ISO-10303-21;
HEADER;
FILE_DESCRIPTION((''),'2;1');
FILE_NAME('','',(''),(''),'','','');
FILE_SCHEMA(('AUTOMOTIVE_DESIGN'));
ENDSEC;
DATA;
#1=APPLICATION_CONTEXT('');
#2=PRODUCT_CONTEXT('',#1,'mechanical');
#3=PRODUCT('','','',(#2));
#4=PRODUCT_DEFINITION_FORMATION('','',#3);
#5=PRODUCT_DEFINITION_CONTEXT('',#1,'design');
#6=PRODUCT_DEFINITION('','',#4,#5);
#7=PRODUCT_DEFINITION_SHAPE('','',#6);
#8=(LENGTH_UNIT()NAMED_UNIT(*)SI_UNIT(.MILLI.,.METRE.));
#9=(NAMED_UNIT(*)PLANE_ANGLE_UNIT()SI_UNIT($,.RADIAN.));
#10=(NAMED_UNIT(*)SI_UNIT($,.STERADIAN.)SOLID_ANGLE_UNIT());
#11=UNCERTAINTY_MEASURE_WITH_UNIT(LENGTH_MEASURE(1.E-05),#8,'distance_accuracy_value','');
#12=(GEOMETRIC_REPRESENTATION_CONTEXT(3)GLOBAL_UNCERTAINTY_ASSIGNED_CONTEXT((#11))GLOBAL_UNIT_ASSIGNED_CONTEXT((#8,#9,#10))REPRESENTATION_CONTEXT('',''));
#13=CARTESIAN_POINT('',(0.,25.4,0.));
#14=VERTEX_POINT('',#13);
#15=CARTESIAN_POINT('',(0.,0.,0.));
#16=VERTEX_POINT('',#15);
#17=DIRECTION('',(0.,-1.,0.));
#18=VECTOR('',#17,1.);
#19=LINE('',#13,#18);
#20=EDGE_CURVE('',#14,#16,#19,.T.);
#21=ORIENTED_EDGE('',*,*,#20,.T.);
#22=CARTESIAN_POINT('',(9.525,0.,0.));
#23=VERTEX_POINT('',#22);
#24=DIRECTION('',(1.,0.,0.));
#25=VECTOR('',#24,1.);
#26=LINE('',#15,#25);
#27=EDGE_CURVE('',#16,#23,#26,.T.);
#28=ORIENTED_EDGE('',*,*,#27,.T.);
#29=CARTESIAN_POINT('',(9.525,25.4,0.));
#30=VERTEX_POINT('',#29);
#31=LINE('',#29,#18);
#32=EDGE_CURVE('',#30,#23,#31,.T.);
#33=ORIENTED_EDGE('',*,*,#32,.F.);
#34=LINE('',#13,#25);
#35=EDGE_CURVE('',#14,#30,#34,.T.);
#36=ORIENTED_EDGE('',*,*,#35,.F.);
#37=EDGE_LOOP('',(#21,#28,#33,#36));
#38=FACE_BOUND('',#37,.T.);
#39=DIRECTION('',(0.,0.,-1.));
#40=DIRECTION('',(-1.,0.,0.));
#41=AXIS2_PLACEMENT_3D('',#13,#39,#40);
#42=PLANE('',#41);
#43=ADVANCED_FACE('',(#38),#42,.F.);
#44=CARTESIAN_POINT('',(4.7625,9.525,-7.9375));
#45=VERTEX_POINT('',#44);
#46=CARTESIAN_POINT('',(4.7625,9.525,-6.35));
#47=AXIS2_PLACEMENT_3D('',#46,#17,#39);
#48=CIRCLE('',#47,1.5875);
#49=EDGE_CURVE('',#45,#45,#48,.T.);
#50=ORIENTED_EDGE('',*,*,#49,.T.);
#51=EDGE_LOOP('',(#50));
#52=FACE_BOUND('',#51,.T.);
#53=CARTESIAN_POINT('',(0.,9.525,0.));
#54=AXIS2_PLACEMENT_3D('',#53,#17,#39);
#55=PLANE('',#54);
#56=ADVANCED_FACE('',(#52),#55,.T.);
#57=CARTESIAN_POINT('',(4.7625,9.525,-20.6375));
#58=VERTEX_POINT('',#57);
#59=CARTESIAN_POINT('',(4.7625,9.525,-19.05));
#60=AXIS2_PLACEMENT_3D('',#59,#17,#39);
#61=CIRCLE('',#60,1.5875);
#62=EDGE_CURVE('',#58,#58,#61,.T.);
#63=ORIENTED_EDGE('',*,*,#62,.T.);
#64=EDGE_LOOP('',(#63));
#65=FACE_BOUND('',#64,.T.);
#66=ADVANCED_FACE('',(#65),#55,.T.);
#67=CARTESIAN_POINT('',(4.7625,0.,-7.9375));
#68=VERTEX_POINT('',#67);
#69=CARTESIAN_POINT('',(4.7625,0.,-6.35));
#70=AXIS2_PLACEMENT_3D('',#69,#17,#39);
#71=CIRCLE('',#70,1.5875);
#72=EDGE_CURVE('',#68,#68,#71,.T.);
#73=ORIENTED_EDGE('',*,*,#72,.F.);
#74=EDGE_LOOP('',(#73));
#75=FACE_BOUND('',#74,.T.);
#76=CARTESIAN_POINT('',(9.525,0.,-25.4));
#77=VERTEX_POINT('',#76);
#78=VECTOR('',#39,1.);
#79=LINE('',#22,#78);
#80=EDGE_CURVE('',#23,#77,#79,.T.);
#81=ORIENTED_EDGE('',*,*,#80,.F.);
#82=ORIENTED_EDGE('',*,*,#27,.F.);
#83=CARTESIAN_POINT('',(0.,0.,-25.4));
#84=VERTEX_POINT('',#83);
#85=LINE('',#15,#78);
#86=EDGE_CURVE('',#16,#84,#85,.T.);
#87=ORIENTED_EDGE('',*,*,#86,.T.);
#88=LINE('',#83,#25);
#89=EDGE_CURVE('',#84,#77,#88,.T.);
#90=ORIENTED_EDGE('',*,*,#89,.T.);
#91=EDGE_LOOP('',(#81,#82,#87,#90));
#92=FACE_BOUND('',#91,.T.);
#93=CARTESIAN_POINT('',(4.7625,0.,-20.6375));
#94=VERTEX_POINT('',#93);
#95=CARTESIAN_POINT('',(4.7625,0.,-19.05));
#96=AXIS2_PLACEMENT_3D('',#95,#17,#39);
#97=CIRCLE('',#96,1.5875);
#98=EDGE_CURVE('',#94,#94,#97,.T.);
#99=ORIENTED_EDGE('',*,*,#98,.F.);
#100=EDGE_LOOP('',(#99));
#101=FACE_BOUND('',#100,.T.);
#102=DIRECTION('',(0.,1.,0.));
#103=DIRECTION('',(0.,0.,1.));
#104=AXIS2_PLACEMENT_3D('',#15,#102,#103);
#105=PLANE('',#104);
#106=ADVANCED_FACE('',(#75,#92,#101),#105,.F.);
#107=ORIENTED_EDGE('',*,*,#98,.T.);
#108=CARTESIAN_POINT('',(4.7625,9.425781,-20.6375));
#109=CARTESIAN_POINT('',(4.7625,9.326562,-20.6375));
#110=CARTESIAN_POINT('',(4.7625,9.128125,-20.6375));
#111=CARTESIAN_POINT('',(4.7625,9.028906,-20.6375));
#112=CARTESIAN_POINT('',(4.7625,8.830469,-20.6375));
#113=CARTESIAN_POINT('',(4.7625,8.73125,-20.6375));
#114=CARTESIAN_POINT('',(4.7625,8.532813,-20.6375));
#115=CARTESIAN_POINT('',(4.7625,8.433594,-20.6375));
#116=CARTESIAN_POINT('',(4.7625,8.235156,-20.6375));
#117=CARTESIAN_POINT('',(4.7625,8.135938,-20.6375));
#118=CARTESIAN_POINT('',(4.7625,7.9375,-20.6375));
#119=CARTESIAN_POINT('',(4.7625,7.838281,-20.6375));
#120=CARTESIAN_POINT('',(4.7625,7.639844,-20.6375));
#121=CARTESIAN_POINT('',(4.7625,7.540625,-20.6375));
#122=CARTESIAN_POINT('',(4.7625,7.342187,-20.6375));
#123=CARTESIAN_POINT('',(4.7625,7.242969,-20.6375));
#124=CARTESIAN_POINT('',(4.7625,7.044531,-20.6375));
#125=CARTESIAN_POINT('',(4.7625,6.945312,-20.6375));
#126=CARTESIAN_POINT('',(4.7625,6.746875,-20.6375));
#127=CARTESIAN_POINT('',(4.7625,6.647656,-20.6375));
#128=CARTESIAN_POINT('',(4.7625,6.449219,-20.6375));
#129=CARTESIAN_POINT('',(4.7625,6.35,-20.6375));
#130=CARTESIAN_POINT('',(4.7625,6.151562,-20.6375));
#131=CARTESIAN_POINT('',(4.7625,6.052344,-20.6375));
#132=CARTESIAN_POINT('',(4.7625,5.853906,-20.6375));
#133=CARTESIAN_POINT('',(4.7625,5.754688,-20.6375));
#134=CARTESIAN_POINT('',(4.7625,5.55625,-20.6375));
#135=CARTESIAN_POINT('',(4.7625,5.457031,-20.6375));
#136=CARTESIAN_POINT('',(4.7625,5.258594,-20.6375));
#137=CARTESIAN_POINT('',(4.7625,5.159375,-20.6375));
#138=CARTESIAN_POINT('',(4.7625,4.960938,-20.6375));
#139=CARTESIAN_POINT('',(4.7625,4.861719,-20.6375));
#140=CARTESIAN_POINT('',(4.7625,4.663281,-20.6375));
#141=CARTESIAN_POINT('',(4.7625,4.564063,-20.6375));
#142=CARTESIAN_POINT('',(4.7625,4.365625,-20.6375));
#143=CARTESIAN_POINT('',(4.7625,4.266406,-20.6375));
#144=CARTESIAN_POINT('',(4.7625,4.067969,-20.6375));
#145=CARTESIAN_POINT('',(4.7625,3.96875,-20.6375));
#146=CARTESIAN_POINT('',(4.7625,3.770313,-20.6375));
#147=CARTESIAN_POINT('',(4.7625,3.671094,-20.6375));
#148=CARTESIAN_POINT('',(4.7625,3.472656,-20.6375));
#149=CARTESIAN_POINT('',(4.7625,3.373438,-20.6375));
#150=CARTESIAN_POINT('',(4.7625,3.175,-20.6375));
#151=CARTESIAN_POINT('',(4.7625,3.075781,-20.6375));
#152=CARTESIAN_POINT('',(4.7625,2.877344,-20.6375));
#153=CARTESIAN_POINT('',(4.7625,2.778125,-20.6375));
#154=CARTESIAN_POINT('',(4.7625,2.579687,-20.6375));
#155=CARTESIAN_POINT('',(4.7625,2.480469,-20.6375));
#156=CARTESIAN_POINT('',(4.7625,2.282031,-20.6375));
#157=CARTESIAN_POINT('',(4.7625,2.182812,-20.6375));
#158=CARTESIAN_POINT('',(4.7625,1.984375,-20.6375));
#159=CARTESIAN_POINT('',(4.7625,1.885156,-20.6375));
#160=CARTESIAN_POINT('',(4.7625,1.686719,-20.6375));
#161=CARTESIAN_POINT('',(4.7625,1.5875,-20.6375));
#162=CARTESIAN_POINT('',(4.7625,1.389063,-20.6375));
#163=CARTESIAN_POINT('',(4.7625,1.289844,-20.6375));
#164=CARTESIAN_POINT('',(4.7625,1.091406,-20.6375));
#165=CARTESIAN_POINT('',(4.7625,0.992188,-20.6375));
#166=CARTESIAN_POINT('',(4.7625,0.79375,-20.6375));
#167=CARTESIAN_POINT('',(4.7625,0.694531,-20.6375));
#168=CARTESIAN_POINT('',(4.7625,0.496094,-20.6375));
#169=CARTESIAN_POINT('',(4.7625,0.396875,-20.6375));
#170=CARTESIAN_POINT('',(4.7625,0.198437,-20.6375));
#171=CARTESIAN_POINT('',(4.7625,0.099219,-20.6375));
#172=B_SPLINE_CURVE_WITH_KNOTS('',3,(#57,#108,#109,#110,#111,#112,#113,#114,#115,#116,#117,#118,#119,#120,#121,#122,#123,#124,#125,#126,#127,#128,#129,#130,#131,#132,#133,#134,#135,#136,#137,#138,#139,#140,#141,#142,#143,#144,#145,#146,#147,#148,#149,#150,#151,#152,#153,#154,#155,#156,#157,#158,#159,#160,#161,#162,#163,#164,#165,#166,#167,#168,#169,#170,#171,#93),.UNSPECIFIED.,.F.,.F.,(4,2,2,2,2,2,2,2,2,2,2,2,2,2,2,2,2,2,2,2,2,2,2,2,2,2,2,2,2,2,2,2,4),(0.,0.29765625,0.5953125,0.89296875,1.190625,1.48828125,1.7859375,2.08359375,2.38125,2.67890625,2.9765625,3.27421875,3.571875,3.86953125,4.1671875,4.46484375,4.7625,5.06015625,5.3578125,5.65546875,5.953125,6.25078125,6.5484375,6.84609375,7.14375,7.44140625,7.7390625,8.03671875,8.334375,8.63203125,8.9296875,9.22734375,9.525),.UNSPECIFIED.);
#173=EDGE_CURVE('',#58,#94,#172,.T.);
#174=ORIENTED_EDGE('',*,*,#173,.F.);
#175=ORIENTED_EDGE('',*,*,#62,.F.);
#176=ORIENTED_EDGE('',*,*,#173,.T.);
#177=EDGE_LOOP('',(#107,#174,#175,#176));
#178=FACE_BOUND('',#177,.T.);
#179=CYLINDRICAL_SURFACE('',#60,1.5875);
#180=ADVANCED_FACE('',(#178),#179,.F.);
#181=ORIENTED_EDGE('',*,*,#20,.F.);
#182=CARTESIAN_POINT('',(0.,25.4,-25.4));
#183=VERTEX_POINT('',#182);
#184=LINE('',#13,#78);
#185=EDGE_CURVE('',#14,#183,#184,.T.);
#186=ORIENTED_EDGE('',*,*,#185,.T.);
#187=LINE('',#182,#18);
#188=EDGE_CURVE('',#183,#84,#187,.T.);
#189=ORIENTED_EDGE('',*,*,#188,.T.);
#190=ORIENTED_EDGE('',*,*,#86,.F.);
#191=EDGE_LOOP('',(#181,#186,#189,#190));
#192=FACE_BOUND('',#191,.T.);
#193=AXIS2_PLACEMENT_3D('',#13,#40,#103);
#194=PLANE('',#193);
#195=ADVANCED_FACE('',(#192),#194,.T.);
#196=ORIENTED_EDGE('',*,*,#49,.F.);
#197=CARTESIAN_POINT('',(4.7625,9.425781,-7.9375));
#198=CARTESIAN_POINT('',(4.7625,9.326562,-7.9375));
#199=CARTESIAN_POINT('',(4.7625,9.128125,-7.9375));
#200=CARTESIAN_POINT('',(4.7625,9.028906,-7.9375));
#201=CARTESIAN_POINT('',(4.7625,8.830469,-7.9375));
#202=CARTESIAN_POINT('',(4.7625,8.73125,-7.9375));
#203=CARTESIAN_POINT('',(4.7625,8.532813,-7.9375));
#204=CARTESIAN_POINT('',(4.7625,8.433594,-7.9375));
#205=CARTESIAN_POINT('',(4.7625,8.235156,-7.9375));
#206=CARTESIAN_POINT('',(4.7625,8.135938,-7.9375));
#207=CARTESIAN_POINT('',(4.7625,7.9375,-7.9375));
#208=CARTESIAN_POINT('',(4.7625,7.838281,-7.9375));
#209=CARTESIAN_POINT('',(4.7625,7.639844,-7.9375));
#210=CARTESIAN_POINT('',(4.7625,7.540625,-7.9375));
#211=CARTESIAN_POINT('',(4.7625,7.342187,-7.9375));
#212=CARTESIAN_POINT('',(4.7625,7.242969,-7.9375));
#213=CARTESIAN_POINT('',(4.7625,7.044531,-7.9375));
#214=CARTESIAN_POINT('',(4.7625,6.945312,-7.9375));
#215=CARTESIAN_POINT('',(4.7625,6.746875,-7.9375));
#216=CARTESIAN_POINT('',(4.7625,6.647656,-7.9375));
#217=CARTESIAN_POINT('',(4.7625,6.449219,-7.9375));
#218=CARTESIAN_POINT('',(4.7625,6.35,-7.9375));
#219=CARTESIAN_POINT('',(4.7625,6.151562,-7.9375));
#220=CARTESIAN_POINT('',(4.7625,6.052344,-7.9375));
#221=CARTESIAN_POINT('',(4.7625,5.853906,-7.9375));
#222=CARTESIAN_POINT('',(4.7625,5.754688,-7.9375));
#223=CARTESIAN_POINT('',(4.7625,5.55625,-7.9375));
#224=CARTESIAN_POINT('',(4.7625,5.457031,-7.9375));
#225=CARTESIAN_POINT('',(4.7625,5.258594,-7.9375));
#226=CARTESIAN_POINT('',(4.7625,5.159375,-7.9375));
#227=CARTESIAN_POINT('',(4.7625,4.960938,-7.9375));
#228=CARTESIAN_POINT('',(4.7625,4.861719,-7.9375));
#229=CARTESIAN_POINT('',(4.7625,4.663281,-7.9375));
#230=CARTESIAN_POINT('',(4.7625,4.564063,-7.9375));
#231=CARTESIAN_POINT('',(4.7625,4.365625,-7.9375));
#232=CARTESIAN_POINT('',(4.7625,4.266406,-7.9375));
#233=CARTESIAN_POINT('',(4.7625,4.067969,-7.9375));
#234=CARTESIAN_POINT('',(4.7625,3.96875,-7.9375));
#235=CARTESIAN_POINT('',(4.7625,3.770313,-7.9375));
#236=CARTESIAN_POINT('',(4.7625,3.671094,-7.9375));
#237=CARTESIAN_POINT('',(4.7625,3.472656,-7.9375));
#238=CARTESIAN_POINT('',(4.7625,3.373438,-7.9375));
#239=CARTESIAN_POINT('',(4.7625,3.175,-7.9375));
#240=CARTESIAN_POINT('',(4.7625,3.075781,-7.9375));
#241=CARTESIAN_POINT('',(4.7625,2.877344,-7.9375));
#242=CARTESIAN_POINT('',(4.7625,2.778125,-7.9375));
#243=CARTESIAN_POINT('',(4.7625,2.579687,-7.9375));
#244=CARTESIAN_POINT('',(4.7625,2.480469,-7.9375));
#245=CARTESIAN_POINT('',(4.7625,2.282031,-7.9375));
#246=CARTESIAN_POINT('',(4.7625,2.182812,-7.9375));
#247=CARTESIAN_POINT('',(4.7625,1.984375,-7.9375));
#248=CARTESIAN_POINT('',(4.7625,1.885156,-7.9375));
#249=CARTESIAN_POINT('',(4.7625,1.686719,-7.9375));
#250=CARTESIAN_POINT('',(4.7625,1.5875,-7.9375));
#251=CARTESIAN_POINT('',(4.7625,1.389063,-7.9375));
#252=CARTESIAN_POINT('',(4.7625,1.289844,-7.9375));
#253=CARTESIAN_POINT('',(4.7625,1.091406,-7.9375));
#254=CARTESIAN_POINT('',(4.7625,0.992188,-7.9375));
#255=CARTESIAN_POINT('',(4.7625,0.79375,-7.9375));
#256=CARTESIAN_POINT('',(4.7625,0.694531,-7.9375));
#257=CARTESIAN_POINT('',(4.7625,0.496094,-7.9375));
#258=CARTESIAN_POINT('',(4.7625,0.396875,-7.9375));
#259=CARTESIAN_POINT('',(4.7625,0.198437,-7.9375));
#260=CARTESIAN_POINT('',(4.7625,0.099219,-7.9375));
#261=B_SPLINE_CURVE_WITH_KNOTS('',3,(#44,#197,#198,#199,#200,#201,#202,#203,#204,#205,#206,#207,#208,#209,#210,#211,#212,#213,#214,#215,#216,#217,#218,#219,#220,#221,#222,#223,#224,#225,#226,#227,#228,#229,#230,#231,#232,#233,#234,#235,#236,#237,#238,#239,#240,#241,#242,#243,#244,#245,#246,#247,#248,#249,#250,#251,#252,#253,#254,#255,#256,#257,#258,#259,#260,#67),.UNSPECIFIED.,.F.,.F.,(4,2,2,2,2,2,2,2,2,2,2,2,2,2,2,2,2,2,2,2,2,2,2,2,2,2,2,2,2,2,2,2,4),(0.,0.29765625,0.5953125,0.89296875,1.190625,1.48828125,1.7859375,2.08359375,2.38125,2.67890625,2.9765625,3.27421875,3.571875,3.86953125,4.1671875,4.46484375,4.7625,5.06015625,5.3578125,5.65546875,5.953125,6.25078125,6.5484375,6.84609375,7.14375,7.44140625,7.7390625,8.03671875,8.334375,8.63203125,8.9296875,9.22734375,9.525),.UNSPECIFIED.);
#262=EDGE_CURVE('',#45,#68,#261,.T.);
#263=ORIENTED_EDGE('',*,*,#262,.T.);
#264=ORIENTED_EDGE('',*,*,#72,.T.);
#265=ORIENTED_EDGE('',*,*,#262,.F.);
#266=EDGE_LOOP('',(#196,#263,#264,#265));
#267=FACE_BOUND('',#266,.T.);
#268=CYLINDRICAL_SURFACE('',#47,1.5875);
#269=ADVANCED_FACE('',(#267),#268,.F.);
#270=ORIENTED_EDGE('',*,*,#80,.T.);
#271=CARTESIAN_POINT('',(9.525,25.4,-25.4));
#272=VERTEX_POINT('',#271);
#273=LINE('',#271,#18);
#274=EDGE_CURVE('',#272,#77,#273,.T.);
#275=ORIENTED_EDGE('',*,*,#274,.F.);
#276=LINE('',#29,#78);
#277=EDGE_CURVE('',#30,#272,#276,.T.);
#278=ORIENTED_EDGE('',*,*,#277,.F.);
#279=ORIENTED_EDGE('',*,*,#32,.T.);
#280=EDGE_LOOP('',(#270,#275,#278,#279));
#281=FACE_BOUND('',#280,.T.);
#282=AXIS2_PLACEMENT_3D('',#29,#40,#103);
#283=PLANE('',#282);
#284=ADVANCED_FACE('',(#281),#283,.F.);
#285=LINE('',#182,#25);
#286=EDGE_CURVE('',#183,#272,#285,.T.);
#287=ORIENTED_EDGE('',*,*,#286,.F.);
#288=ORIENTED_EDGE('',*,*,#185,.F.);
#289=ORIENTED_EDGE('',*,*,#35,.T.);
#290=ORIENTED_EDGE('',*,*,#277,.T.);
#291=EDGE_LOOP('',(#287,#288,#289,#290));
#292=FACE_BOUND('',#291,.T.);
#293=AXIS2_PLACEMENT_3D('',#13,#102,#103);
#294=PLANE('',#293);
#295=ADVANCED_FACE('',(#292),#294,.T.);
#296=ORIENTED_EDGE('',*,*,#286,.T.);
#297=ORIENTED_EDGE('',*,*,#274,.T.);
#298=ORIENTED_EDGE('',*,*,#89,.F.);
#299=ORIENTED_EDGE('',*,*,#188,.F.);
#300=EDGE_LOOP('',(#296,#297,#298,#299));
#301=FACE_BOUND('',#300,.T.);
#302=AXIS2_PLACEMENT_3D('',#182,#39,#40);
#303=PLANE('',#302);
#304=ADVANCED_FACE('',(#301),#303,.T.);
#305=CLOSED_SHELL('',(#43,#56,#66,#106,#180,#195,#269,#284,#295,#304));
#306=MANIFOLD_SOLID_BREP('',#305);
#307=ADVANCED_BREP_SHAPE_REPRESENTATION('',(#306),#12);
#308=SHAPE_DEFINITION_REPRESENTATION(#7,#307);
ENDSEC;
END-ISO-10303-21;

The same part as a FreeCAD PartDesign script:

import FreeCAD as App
import Part
import Sketcher
from FreeCAD import Vector
Q = App.Units.Quantity


def add_polygon(sketch, points):
    """Adds a closed chain of lines whose ends are joined by coincident constraints."""
    first, n = sketch.GeometryCount, len(points)
    for a, b in zip(points, points[1:] + points[:1]):
        sketch.addGeometry(Part.LineSegment(App.Vector(*a, 0), App.Vector(*b, 0)), False)
    for i in range(n):
        sketch.addConstraint(Sketcher.Constraint("Coincident", first + i, 2, first + (i + 1) % n, 1))

doc = App.newDocument("Part")
body = doc.addObject("PartDesign::Body", "Body")

# Sketch on XZ plane
sketch1 = body.newObject("Sketcher::SketchObject", "Sketch")
sketch1.AttachmentSupport = (doc.getObject("XZ_Plane"), [""])
sketch1.MapMode = "FlatFace"
add_polygon(sketch1, [(0, -25), (0, 0), (10, 0), (10, -25)])  # lines 0-3
sketch1.addConstraint(Sketcher.Constraint("Vertical", 0))
sketch1.addConstraint(Sketcher.Constraint("Horizontal", 1))
sketch1.addConstraint(Sketcher.Constraint("Vertical", 2))
sketch1.addConstraint(Sketcher.Constraint("Horizontal", 3))
sketch1.addConstraint(Sketcher.Constraint("Coincident", 0, 2, -1, 1))
sketch1.addConstraint(Sketcher.Constraint("DistanceY", 0, 1, 0, 2, Q("1 in")))
sketch1.addConstraint(Sketcher.Constraint("DistanceX", 1, 1, 1, 2, Q("0.375 in")))
pad1 = body.newObject("PartDesign::Pad", "Pad")
pad1.Profile = sketch1
pad1.Length = Q("1 in")
pad1.Reversed = True

# Sketch on XZ plane
sketch2 = body.newObject("Sketcher::SketchObject", "Sketch001")
sketch2.AttachmentSupport = (doc.getObject("XZ_Plane"), [""])
sketch2.MapMode = "FlatFace"
sketch2.addGeometry(Part.Circle(Vector(4.8, -19.1, 0), Vector(0, 0, 1), 1.6), False)
sketch2.addGeometry(Part.Circle(Vector(4.8, -6.3, 0), Vector(0, 0, 1), 1.6), False)
sketch2.addConstraint(Sketcher.Constraint("Equal", 0, 1))
sketch2.addConstraint(Sketcher.Constraint("Vertical", 0, 3, 1, 3))
sketch2.addConstraint(Sketcher.Constraint("Diameter", 0, Q("0.125 in")))
sketch2.addConstraint(Sketcher.Constraint("DistanceY", 0, 3, 1, 3, Q("0.5 in")))
sketch2.addConstraint(Sketcher.Constraint("DistanceY", 0, 3, -1, 1, Q("0.75 in")))
sketch2.addConstraint(Sketcher.Constraint("DistanceX", -1, 1, 0, 3, Q("0.1875 in")))
pocket1 = body.newObject("PartDesign::Pocket", "Pocket")
pocket1.Profile = sketch2
pocket1.Length = Q("0.375 in")

doc.recompute()
